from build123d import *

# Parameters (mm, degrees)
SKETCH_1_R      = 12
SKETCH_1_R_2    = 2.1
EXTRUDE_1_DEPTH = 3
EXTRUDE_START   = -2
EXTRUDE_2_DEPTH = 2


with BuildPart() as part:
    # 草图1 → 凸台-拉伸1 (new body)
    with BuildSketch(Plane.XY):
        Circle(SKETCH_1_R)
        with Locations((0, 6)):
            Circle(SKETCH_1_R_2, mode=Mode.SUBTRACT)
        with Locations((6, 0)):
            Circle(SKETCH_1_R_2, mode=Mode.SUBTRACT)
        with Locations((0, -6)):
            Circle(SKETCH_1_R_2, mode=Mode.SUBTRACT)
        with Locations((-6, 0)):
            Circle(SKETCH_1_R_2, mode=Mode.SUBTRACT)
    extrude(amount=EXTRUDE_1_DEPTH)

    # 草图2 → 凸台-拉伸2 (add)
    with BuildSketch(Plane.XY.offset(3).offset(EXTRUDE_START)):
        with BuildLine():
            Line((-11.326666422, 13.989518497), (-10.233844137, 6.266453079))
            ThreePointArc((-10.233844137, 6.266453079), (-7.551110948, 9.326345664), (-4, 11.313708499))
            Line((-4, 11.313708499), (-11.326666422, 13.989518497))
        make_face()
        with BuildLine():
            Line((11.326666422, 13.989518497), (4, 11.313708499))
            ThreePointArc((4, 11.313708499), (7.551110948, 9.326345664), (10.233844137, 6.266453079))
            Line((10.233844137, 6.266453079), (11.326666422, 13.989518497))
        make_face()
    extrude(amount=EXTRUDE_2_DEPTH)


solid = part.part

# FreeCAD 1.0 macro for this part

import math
import FreeCAD as App
import Part
import Sketcher
from FreeCAD import Vector
Q = App.Units.Quantity

doc = App.newDocument("Part")
body = doc.addObject("PartDesign::Body", "Body")

sketch1 = body.newObject("Sketcher::SketchObject", "Sketch")
sketch1.AttachmentSupport = (doc.getObject("XY_Plane"), [""])
sketch1.MapMode = "FlatFace"
sketch1.addGeometry([
    Part.Circle(Vector(0, 0, 0), Vector(0, 0, 1), 12),
    Part.Circle(Vector(0, -6, 0), Vector(0, 0, 1), 2.1),
    Part.Circle(Vector(-6, 0, 0), Vector(0, 0, 1), 2.1),
    Part.Circle(Vector(6, 0, 0), Vector(0, 0, 1), 2.1),
    Part.Circle(Vector(0, 6, 0), Vector(0, 0, 1), 2.1),
], False)
sketch1.addConstraint([
    Sketcher.Constraint("Coincident", 0, 3, -1, 1),
    Sketcher.Constraint("Equal", 1, 2),
    Sketcher.Constraint("Equal", 2, 3),
    Sketcher.Constraint("Equal", 3, 4),
    Sketcher.Constraint("Symmetric", 2, 3, 3, 3, -1, 1),
    Sketcher.Constraint("Symmetric", 1, 3, 4, 3, -1, 1),
    Sketcher.Constraint("PointOnObject", 1, 3, -2),
    Sketcher.Constraint("PointOnObject", 2, 3, -1),
    Sketcher.Constraint("Diameter", 0, Q("24 mm")),
    Sketcher.Constraint("Diameter", 1, Q("4.2 mm")),
    Sketcher.Constraint("DistanceY", 1, 3, -1, 1, Q("6 mm")),
    Sketcher.Constraint("DistanceX", 2, 3, -1, 1, Q("6 mm")),
])
pad1 = body.newObject("PartDesign::Pad", "Pad")
pad1.Profile = sketch1
pad1.Length = 3

sketch2 = body.newObject("Sketcher::SketchObject", "Sketch001")
sketch2.AttachmentSupport = (doc.getObject("XY_Plane"), [""])
sketch2.MapMode = "FlatFace"
sketch2.AttachmentOffset = App.Placement(Vector(0, 0, 1), App.Rotation())
sketch2.addGeometry([
    Part.LineSegment(Vector(-11, 14, 0), Vector(-10, 6, 0)),
    Part.ArcOfCircle(Part.Circle(Vector(0, 0, 0), Vector(0, 0, 1), 12), math.radians(109), math.radians(149)),
    Part.LineSegment(Vector(-4, 11, 0), Vector(-11, 14, 0)),
    Part.LineSegment(Vector(11, 14, 0), Vector(4, 11, 0)),
    Part.ArcOfCircle(Part.Circle(Vector(0, 0, 0), Vector(0, 0, 1), 12), math.radians(31), math.radians(71)),
    Part.LineSegment(Vector(10, 6, 0), Vector(11, 14, 0)),
], False)
sketch2.addConstraint([
    Sketcher.Constraint("Coincident", 0, 2, 1, 2),
    Sketcher.Constraint("Coincident", 1, 1, 2, 1),
    Sketcher.Constraint("Coincident", 2, 2, 0, 1),
    Sketcher.Constraint("Coincident", 3, 2, 4, 2),
    Sketcher.Constraint("Coincident", 4, 1, 5, 1),
    Sketcher.Constraint("Coincident", 5, 2, 3, 1),
    Sketcher.Constraint("Coincident", 1, 3, -1, 1),
    Sketcher.Constraint("Coincident", 4, 3, -1, 1),
    Sketcher.Constraint("Equal", 1, 4),
    Sketcher.Constraint("Symmetric", 2, 2, 5, 2, -2),
    Sketcher.Constraint("Horizontal", 1, 1, 3, 2),
    Sketcher.Constraint("Horizontal", 0, 2, 4, 1),
    Sketcher.Constraint("Equal", 0, 2),
    Sketcher.Constraint("Radius", 1, Q("12 mm")),
    Sketcher.Constraint("DistanceX", 1, 1, -1, 1, Q("4 mm")),
    Sketcher.Constraint("Distance", 0, Q("7.8 mm")),
    Sketcher.Constraint("DistanceY", -1, 1, 2, 2, Q("13.989518 mm")),
])
pad2 = body.newObject("PartDesign::Pad", "Pad001")
pad2.Profile = sketch2
pad2.Length = 2

doc.recompute()
